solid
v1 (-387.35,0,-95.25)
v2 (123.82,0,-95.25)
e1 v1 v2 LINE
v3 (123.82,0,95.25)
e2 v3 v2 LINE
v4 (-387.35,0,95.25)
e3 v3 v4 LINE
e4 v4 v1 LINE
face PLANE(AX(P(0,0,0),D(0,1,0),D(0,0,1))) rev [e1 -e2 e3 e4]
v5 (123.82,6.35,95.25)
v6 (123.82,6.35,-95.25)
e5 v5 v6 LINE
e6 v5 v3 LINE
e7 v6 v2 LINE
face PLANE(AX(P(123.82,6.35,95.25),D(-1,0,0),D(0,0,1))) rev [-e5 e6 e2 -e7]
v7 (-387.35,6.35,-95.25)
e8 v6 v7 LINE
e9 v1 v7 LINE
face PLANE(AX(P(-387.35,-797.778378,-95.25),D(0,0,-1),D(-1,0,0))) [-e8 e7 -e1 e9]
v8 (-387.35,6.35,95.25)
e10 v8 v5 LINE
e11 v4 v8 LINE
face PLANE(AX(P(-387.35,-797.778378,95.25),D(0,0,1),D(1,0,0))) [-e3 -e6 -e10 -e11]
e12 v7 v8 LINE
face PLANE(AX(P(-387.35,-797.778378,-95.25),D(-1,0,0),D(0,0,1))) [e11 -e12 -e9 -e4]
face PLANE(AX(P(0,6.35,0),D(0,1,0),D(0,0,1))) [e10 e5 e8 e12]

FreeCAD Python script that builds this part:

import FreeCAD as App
import Part
import Sketcher
Q = App.Units.Quantity


def add_polygon(sketch, points):
    """Adds a closed chain of lines whose ends are joined by coincident constraints."""
    first, n = sketch.GeometryCount, len(points)
    for a, b in zip(points, points[1:] + points[:1]):
        sketch.addGeometry(Part.LineSegment(App.Vector(*a, 0), App.Vector(*b, 0)), False)
    for i in range(n):
        sketch.addConstraint(Sketcher.Constraint("Coincident", first + i, 2, first + (i + 1) % n, 1))

doc = App.newDocument("Part")
body = doc.addObject("PartDesign::Body", "Body")

# Sketch on XZ plane
sketch1 = body.newObject("Sketcher::SketchObject", "Sketch")
sketch1.AttachmentSupport = (doc.getObject("XZ_Plane"), [""])
sketch1.MapMode = "FlatFace"
add_polygon(sketch1, [(-381, -89), (-381, 89), (381, 89), (381, -89)])  # lines 0-3
sketch1.addConstraint([
    Sketcher.Constraint("Vertical", 0),
    Sketcher.Constraint("Horizontal", 1),
    Sketcher.Constraint("Vertical", 2),
    Sketcher.Constraint("Horizontal", 3),
    Sketcher.Constraint("Symmetric", 0, 2, 2, 2, -1, 1),
    Sketcher.Constraint("DistanceX", 1, 1, 1, 2, Q("30 in")),
    Sketcher.Constraint("DistanceY", 0, 1, 0, 2, Q("7 in")),
])
pad1 = body.newObject("PartDesign::Pad", "Pad")
pad1.Profile = sketch1
pad1.Length = Q("0.25 in")
pad1.Reversed = True

# Sketch on XZ plane
sketch2 = body.newObject("Sketcher::SketchObject", "Sketch001")
sketch2.AttachmentSupport = (doc.getObject("XZ_Plane"), [""])
sketch2.MapMode = "FlatFace"
sketch2.AttachmentOffset = App.Placement(App.Vector(0, 0, -0.25 * 25.4), App.Rotation())
add_polygon(sketch2, [(-387, -95), (-387, 95), (387, 95), (387, -95)])  # lines 0-3
add_polygon(sketch2, [(381, 89), (-381, 89), (-381, -89), (381, -89)])  # lines 4-7
sketch2.addConstraint([
    Sketcher.Constraint("Vertical", 0),
    Sketcher.Constraint("Horizontal", 1),
    Sketcher.Constraint("Vertical", 2),
    Sketcher.Constraint("Horizontal", 3),
    Sketcher.Constraint("Horizontal", 4),
    Sketcher.Constraint("Vertical", 5),
    Sketcher.Constraint("Horizontal", 6),
    Sketcher.Constraint("Vertical", 7),
    Sketcher.Constraint("Symmetric", 0, 2, 2, 2, -1, 1),
    Sketcher.Constraint("Symmetric", 4, 2, 6, 2, -1, 1),
    Sketcher.Constraint("DistanceX", 4, 2, 4, 1, Q("30 in")),
    Sketcher.Constraint("DistanceY", 5, 2, 5, 1, Q("7 in")),
    Sketcher.Constraint("DistanceX", 1, 1, 1, 2, Q("30.5 in")),
    Sketcher.Constraint("DistanceY", 0, 1, 0, 2, Q("7.5 in")),
])
pad2 = body.newObject("PartDesign::Pad", "Pad001")
pad2.Profile = sketch2
pad2.Length = Q("0.25 in")

# Sketch on XZ plane
sketch3 = body.newObject("Sketcher::SketchObject", "Sketch002")
sketch3.AttachmentSupport = (doc.getObject("XZ_Plane"), [""])
sketch3.MapMode = "FlatFace"
add_polygon(sketch3, [(124, 95), (124, -95), (387, -95), (387, 95)])  # lines 0-3
sketch3.addConstraint([
    Sketcher.Constraint("Vertical", 0),
    Sketcher.Constraint("Horizontal", 1),
    Sketcher.Constraint("Vertical", 2),
    Sketcher.Constraint("Horizontal", 3),
    Sketcher.Constraint("DistanceY", 0, 2, 0, 1, Q("7.5 in")),
    Sketcher.Constraint("DistanceY", 0, 2, -1, 1, Q("3.75 in")),
    Sketcher.Constraint("DistanceX", -1, 1, 1, 2, Q("15.25 in")),
    Sketcher.Constraint("DistanceX", 1, 1, 1, 2, 263.53),
])
pocket1 = body.newObject("PartDesign::Pocket", "Pocket")
pocket1.Profile = sketch3
pocket1.Type = "ThroughAll"

doc.recompute()
